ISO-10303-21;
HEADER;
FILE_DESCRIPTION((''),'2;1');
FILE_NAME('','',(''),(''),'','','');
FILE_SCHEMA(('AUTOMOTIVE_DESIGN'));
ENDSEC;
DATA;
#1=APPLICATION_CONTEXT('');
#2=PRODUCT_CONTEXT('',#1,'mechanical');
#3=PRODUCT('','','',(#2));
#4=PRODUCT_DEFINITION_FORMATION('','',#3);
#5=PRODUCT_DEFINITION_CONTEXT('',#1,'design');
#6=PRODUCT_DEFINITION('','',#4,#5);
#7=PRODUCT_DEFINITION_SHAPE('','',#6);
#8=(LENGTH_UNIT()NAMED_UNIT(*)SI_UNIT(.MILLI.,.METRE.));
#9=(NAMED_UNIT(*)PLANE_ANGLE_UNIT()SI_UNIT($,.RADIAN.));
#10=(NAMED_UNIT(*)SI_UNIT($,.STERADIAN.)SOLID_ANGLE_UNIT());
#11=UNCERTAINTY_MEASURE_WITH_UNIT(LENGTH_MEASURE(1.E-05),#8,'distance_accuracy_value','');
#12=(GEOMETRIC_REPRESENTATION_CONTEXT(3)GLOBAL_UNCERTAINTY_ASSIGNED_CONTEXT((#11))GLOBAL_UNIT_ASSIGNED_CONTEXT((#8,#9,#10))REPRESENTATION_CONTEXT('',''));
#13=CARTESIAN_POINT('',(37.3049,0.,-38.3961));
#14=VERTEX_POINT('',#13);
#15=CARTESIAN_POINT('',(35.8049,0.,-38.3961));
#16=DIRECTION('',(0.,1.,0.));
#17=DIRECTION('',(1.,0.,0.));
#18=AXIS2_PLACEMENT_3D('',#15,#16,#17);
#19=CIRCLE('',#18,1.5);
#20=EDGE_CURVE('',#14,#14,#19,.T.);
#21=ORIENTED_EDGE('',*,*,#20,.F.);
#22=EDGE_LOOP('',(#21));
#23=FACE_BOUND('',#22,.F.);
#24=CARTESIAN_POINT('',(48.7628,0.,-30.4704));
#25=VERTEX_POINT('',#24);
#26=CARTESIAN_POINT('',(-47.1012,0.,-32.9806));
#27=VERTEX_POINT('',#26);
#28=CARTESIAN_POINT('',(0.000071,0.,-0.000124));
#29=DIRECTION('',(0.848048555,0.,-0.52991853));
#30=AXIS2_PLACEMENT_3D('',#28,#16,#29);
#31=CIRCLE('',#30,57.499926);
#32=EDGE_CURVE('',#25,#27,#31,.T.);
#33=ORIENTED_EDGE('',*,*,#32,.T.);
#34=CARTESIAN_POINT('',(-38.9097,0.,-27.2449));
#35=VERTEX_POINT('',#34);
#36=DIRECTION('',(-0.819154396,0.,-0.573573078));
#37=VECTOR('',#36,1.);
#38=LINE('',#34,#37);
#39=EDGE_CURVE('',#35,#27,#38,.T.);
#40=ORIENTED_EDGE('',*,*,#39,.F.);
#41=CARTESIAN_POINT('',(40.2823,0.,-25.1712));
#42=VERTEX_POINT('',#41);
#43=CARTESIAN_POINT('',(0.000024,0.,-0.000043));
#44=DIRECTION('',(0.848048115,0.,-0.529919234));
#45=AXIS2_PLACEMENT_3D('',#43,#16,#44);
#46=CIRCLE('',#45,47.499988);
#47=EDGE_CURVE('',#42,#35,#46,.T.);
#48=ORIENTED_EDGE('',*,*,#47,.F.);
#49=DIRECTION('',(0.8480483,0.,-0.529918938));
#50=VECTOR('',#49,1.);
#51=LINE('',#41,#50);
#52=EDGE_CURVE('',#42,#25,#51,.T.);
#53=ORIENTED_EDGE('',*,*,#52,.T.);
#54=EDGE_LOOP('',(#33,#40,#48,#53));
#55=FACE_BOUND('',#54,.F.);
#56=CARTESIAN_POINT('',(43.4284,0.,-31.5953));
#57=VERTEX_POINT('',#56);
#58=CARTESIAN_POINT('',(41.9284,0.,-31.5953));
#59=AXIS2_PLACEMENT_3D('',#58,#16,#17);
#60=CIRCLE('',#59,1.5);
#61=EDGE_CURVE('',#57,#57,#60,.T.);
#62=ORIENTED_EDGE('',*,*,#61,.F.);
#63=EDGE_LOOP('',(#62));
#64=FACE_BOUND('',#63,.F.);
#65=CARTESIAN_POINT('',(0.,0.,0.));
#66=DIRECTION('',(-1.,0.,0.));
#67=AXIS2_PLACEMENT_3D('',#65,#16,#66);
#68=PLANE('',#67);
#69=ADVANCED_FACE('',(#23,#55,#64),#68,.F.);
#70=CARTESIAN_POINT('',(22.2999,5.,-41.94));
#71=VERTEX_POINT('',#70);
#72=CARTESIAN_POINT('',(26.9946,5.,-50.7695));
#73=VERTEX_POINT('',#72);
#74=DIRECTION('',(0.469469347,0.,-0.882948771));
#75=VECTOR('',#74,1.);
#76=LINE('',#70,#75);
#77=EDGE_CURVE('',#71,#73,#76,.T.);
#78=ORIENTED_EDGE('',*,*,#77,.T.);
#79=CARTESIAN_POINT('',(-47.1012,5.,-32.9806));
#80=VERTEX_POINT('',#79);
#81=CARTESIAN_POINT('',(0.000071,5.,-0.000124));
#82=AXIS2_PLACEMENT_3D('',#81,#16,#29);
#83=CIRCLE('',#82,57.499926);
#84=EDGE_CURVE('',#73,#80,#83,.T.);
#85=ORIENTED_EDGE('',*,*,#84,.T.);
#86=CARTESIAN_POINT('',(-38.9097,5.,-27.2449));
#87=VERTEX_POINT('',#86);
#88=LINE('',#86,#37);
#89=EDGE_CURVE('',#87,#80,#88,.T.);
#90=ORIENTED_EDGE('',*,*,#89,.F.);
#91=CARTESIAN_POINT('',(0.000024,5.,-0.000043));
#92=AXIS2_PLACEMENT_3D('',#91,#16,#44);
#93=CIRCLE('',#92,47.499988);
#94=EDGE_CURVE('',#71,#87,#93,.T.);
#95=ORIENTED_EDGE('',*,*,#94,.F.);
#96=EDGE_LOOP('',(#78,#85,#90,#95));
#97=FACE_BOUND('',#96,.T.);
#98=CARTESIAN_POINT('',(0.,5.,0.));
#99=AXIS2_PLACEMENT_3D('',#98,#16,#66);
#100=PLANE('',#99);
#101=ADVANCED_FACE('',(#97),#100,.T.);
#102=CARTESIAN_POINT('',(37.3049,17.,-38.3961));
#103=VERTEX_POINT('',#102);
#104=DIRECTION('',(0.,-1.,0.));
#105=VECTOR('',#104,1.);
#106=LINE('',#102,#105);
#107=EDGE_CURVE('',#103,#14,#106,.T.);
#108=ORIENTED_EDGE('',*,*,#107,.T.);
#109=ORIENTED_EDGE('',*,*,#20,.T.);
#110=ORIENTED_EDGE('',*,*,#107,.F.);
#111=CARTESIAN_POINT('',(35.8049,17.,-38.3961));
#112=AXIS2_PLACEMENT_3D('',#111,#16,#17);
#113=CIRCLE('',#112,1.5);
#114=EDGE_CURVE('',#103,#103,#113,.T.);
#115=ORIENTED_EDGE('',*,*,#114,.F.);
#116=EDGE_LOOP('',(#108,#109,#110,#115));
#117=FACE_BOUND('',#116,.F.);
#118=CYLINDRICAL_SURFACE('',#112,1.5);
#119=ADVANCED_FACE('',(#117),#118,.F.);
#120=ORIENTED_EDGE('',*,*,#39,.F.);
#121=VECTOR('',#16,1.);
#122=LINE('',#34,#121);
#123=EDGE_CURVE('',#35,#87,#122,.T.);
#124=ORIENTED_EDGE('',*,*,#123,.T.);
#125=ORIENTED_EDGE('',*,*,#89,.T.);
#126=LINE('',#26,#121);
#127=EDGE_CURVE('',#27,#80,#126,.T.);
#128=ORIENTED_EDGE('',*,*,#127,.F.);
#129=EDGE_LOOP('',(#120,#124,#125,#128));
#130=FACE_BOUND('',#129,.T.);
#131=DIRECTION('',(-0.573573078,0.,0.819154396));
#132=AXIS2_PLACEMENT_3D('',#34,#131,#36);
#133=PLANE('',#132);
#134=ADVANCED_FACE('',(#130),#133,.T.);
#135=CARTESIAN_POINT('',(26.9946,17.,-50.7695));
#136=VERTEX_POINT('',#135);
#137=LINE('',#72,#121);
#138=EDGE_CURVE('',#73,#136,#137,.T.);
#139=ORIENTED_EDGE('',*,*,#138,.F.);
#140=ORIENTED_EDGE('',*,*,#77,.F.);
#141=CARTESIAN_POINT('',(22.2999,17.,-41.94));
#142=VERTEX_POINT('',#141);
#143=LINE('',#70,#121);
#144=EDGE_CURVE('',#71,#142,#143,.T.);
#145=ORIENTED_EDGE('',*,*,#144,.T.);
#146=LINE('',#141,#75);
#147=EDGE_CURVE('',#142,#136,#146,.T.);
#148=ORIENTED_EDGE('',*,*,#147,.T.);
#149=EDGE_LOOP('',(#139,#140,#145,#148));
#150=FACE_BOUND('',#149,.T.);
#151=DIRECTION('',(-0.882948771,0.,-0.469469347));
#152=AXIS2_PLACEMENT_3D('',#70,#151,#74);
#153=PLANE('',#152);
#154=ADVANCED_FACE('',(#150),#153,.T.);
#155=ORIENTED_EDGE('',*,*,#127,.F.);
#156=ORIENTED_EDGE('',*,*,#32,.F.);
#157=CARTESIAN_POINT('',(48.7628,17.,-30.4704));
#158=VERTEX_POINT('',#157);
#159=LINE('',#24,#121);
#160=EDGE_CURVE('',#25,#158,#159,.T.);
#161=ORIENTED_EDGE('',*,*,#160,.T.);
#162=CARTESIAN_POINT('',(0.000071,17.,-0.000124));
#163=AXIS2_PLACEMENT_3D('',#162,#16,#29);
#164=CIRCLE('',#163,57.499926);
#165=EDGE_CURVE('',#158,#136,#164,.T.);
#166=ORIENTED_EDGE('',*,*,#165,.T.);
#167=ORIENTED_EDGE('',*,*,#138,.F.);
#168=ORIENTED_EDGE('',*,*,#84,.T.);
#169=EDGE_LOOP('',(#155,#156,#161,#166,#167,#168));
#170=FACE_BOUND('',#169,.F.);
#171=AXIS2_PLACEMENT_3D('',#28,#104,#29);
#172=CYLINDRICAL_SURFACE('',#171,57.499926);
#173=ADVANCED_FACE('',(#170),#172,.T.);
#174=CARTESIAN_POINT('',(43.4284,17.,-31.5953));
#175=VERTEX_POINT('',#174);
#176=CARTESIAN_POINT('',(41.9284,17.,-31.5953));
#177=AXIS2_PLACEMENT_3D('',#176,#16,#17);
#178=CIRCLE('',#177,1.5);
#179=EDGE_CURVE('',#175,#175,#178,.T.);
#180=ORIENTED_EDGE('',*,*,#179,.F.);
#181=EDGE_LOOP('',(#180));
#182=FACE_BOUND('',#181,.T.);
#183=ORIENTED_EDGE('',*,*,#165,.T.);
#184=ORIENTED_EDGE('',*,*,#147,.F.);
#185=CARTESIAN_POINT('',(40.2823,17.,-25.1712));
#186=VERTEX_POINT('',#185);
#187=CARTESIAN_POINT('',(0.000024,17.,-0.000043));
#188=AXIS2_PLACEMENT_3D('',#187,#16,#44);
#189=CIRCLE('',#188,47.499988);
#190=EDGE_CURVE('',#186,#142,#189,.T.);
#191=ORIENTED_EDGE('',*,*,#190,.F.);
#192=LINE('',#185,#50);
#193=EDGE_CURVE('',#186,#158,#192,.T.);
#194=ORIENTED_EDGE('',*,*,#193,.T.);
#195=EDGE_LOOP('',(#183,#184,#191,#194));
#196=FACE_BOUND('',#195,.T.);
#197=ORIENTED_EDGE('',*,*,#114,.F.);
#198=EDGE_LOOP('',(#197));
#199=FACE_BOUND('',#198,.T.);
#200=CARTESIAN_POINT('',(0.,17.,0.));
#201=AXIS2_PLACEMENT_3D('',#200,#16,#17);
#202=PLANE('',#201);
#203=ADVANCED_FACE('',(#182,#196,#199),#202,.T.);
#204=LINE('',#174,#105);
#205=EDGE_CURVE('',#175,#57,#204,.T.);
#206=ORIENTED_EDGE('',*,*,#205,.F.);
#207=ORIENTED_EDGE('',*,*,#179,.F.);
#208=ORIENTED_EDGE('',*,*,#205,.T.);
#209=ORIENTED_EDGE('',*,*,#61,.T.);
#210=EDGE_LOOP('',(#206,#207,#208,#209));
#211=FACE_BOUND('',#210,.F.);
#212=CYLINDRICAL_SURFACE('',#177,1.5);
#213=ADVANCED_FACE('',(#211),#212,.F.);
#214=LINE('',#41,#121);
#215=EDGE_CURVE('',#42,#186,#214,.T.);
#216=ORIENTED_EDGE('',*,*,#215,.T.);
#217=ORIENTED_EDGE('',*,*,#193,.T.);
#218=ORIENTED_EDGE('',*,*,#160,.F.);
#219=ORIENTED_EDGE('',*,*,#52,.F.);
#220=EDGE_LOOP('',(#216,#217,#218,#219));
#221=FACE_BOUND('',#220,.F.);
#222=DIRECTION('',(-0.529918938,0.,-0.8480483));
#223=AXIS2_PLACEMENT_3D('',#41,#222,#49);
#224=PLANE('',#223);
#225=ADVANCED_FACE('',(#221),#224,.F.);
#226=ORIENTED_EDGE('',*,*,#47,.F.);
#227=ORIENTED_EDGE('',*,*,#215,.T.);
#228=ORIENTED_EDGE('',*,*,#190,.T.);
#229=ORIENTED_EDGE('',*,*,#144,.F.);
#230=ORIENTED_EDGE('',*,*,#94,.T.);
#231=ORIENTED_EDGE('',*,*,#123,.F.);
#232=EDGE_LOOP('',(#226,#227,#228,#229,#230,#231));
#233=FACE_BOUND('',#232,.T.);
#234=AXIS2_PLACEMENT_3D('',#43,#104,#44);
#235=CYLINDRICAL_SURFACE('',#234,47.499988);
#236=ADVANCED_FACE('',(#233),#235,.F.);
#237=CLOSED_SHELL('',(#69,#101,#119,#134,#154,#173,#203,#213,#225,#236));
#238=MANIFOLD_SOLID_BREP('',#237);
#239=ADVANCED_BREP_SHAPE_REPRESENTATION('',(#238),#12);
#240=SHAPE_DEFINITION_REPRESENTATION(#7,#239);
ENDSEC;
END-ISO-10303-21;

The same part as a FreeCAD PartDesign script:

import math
import FreeCAD as App
import Part
import Sketcher
from FreeCAD import Vector
Q = App.Units.Quantity

doc = App.newDocument("Part")
params = doc.addObject("Spreadsheet::Sheet", "Params")
for row, (alias, value) in enumerate([
    ("sketch1_radius", "47.5 mm"),
    ("sketch1_radius2", "57.5 mm"),
    ("pad1_length", "5 mm"),
    ("sketch2_radius", "47.5 mm"),
    ("sketch2_radius2", "57.5 mm"),
    ("pad2_length", "12 mm"),
    ("sketch3_diameter", "3 mm"),
    ("pocket1_length", "17 mm"),
], start=1):
    params.set(f"A{row}", alias)
    params.set(f"B{row}", "=" + value)
    params.setAlias(f"B{row}", alias)

body = doc.addObject("PartDesign::Body", "Body")

sketch1 = body.newObject("Sketcher::SketchObject", "Sketch")
sketch1.AttachmentSupport = (doc.getObject("XZ_Plane"), [""])
sketch1.MapMode = "FlatFace"
sketch1.addGeometry([
    Part.ArcOfCircle(Part.Circle(Vector(0, 0, 0), Vector(0, 0, 1), 47.500032), math.radians(-144.999966), math.radians(-32.000026)),
    Part.LineSegment(Vector(40.2823, -25.1712, 0), Vector(48.7628, -30.4704, 0)),
    Part.ArcOfCircle(Part.Circle(Vector(0, 0, 0), Vector(0, 0, 1), 57.500052), math.radians(-145.000012), math.radians(-32.000018)),
    Part.LineSegment(Vector(-47.1012, -32.9806, 0), Vector(-38.9097, -27.2449, 0)),
], False)
sketch1.addConstraint([
    Sketcher.Constraint("Coincident", 0, 2, 1, 1),
    Sketcher.Constraint("Coincident", 1, 2, 2, 2),
    Sketcher.Constraint("Coincident", 2, 1, 3, 1),
    Sketcher.Constraint("Coincident", 3, 2, 0, 1),
    Sketcher.Constraint("Coincident", 0, 3, -1, 1),
    Sketcher.Constraint("Coincident", 2, 3, -1, 1),
    Sketcher.Constraint("Radius", 0, 47.5),
    Sketcher.Constraint("Radius", 2, 57.5),
    Sketcher.Constraint("Angle", 1, Q("-32 deg")),
    Sketcher.Constraint("Angle", 3, Q("34.9998 deg")),
    Sketcher.Constraint("DistanceY", 3, 2, -1, 1, 27.245),
    Sketcher.Constraint("DistanceX", 2, 1, 1, 2, 95.864),
])
sketch1.setExpression("Constraints[6]", "Params.sketch1_radius")
sketch1.setExpression("Constraints[7]", "Params.sketch1_radius2")
pad1 = body.newObject("PartDesign::Pad", "Pad")
pad1.Profile = sketch1
pad1.setExpression("Length", "Params.pad1_length")
pad1.Reversed = True

sketch2 = body.newObject("Sketcher::SketchObject", "Sketch001")
sketch2.AttachmentSupport = (doc.getObject("XZ_Plane"), [""])
sketch2.MapMode = "FlatFace"
sketch2.AttachmentOffset = App.Placement(Vector(0, 0, -5), App.Rotation())
sketch2.addGeometry([
    Part.ArcOfCircle(Part.Circle(Vector(0, 0, 0), Vector(0, 0, 1), 47.500032), math.radians(-61.999993), math.radians(-32.000026)),
    Part.LineSegment(Vector(40.2823, -25.1712, 0), Vector(48.7628, -30.4704, 0)),
    Part.ArcOfCircle(Part.Circle(Vector(0, 0, 0), Vector(0, 0, 1), 57.500052), math.radians(-62.000019), math.radians(-32.000018)),
    Part.LineSegment(Vector(26.9946, -50.7695, 0), Vector(22.2999, -41.94, 0)),
], False)
sketch2.addConstraint([
    Sketcher.Constraint("Coincident", 0, 2, 1, 1),
    Sketcher.Constraint("Coincident", 1, 2, 2, 2),
    Sketcher.Constraint("Coincident", 2, 1, 3, 1),
    Sketcher.Constraint("Coincident", 3, 2, 0, 1),
    Sketcher.Constraint("Coincident", 0, 3, -1, 1),
    Sketcher.Constraint("Coincident", 2, 3, -1, 1),
    Sketcher.Constraint("Radius", 0, 47.5),
    Sketcher.Constraint("Radius", 2, 57.5),
    Sketcher.Constraint("Angle", 1, Q("-32 deg")),
    Sketcher.Constraint("Angle", 3, Q("117.9999 deg")),
    Sketcher.Constraint("DistanceX", -1, 1, 3, 2, 22.3),
    Sketcher.Constraint("DistanceX", 3, 2, 1, 2, 26.463),
])
sketch2.setExpression("Constraints[6]", "Params.sketch2_radius")
sketch2.setExpression("Constraints[7]", "Params.sketch2_radius2")
pad2 = body.newObject("PartDesign::Pad", "Pad001")
pad2.Profile = sketch2
pad2.setExpression("Length", "Params.pad2_length")
pad2.Reversed = True

sketch3 = body.newObject("Sketcher::SketchObject", "Sketch002")
sketch3.AttachmentSupport = (doc.getObject("XZ_Plane"), [""])
sketch3.MapMode = "FlatFace"
sketch3.AttachmentOffset = App.Placement(Vector(0, 0, -17), App.Rotation())
sketch3.addGeometry([
    Part.Circle(Vector(41.9284, -31.5953, 0), Vector(0, 0, 1), 1.5),
    Part.Circle(Vector(35.8049, -38.3961, 0), Vector(0, 0, 1), 1.5),
], False)
sketch3.addConstraint([
    Sketcher.Constraint("Equal", 0, 1),
    Sketcher.Constraint("Diameter", 0, 3.0),
    Sketcher.Constraint("DistanceX", -1, 1, 1, 3, 35.805),
    Sketcher.Constraint("DistanceY", 1, 3, -1, 1, 38.396),
    Sketcher.Constraint("DistanceX", -1, 1, 0, 3, 41.9284),
    Sketcher.Constraint("DistanceY", 0, 3, -1, 1, 31.5953),
])
sketch3.setExpression("Constraints[1]", "Params.sketch3_diameter")
pocket1 = body.newObject("PartDesign::Pocket", "Pocket")
pocket1.Profile = sketch3
pocket1.setExpression("Length", "Params.pocket1_length")
pocket1.Reversed = True

doc.recompute()
